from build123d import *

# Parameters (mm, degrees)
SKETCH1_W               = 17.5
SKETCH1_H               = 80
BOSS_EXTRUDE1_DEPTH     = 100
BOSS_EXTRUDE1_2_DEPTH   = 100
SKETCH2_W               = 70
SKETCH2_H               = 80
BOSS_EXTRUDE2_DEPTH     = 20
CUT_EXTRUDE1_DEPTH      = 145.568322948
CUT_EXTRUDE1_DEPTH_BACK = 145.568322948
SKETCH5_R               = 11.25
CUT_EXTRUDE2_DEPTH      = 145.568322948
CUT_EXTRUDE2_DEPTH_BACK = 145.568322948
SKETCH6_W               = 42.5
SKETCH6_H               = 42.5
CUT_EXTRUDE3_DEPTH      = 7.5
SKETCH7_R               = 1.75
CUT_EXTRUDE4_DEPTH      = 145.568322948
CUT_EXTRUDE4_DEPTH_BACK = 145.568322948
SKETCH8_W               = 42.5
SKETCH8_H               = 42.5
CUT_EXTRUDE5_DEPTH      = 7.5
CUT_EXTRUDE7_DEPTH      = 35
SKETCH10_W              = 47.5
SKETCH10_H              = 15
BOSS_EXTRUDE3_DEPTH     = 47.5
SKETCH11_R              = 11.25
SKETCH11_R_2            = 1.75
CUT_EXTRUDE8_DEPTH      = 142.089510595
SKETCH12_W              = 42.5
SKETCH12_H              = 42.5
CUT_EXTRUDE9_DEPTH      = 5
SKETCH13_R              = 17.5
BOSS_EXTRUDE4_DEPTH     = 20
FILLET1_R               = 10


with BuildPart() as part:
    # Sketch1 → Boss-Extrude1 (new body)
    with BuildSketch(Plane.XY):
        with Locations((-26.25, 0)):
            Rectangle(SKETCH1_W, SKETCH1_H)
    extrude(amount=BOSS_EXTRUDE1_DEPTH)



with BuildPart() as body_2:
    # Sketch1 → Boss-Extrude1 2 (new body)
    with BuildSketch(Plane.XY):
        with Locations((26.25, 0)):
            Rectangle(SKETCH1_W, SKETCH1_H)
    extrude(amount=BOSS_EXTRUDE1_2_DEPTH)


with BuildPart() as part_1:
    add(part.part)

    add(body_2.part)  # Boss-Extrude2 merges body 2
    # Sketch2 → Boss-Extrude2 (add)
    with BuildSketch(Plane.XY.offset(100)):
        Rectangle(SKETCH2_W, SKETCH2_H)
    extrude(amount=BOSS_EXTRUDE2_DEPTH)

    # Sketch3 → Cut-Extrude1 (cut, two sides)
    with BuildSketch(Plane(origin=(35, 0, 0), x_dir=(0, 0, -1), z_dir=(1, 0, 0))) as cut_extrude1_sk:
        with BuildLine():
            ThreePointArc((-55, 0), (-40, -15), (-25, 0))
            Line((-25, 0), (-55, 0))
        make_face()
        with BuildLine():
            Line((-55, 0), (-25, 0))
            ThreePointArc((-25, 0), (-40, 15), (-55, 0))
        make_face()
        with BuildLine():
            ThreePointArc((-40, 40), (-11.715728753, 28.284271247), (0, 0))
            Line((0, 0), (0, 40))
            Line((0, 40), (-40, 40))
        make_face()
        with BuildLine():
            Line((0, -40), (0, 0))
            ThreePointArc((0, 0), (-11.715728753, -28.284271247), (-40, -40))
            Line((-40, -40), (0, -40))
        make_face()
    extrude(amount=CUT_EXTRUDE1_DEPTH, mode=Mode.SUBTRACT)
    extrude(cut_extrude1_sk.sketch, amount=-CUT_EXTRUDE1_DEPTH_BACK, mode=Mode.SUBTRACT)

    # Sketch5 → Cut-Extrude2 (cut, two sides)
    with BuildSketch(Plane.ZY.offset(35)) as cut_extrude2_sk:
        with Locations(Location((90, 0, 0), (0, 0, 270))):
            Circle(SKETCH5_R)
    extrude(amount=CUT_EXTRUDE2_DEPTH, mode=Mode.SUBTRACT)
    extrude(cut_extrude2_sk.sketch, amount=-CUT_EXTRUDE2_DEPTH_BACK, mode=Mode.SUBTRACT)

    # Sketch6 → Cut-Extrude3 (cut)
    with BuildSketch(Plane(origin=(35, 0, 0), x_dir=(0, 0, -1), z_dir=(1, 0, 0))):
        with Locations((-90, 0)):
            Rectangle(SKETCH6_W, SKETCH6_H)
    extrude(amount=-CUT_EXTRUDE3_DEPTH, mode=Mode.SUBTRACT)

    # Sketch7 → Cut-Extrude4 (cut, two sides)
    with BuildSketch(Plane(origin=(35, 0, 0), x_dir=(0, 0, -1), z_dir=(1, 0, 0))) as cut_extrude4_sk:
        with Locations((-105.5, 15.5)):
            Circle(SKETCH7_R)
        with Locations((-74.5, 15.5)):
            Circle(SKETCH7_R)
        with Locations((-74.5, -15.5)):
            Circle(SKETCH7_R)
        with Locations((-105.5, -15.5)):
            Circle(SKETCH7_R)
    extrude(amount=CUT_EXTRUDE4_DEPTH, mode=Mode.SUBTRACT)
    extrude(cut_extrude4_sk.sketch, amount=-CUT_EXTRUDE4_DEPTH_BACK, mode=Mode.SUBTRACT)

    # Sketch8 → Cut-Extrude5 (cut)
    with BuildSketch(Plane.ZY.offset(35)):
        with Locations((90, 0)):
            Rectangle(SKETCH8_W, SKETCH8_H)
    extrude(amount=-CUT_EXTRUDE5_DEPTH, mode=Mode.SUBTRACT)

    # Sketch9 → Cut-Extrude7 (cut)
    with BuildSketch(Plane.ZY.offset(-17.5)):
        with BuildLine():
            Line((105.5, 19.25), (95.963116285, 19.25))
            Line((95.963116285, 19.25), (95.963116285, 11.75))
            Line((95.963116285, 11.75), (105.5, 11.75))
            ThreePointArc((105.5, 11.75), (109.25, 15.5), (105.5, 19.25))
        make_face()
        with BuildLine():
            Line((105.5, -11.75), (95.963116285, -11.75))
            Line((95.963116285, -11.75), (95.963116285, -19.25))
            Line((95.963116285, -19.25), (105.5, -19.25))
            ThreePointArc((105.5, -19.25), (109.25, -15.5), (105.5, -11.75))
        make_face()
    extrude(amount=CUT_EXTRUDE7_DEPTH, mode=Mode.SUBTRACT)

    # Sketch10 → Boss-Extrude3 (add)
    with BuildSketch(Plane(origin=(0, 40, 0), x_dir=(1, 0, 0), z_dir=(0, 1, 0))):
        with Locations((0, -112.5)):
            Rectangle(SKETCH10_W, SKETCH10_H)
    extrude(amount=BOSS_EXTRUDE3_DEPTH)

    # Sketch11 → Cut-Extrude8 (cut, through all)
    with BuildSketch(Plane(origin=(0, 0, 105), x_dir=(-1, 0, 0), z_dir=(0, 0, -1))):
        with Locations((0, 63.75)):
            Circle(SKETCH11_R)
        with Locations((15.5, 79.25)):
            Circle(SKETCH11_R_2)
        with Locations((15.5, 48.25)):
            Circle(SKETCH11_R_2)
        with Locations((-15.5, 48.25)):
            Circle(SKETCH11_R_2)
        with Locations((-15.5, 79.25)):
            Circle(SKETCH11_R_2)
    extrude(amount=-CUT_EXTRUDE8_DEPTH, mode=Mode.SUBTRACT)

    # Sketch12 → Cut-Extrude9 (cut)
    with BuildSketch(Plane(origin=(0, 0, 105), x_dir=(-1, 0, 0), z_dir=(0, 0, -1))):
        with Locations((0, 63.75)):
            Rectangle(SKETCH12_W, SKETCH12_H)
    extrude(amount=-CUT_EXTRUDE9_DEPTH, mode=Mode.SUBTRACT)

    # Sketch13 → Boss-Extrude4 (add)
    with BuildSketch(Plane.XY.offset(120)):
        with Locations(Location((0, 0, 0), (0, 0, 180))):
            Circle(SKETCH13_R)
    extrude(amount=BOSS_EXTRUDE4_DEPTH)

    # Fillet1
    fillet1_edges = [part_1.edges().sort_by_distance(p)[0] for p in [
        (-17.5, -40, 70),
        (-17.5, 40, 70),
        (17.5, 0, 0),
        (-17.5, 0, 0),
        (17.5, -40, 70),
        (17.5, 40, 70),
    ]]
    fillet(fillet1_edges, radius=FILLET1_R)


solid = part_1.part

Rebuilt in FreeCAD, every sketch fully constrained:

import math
import FreeCAD as App
import Part
import Sketcher

V = App.Vector


def edges_at(feature, points):
    """Names of the edges that pass closest to the given points."""
    edges = feature.Shape.Edges
    near = lambda p: min(range(len(edges)), key=lambda i: edges[i].distToShape(Part.Vertex(*p))[0])
    return sorted({f"Edge{near(p) + 1}" for p in points})

doc = App.newDocument("Part")
body = doc.addObject("PartDesign::Body", "Body")

# Sketch on XY plane
sketch1 = body.newObject("Sketcher::SketchObject", "Sketch")
sketch1.AttachmentSupport = (doc.getObject("XY_Plane"), [""])
sketch1.MapMode = "FlatFace"
sketch1.addGeometry([
    Part.LineSegment(V(-35, 40, 0), V(-35, -40, 0)),
    Part.LineSegment(V(-35, -40, 0), V(-17.5, -40, 0)),
    Part.LineSegment(V(-17.5, -40, 0), V(-17.5, 40, 0)),
    Part.LineSegment(V(-17.5, 40, 0), V(-35, 40, 0)),
], False)
sketch1.addConstraint([
    Sketcher.Constraint("Coincident", 0, 2, 1, 1),
    Sketcher.Constraint("Coincident", 1, 2, 2, 1),
    Sketcher.Constraint("Coincident", 2, 2, 3, 1),
    Sketcher.Constraint("Coincident", 3, 2, 0, 1),
    Sketcher.Constraint("Vertical", 0),
    Sketcher.Constraint("Horizontal", 1),
    Sketcher.Constraint("Vertical", 2),
    Sketcher.Constraint("Horizontal", 3),
    Sketcher.Constraint("DistanceY", 0, 2, 0, 1, 80.0),
    Sketcher.Constraint("DistanceX", 1, 1, 1, 2, 17.5),
    Sketcher.Constraint("DistanceX", 0, 2, -1, 1, 35.0),
    Sketcher.Constraint("DistanceY", 0, 2, -1, 1, 40.0),
])
pad1 = body.newObject("PartDesign::Pad", "Pad")
pad1.Profile = sketch1
pad1.Length = 100
body2 = doc.addObject("PartDesign::Body", "Body001")

# Sketch on XY plane
sketch2 = body2.newObject("Sketcher::SketchObject", "Sketch001")
sketch2.AttachmentSupport = (doc.getObject("XY_Plane001"), [""])
sketch2.MapMode = "FlatFace"
sketch2.addGeometry([
    Part.LineSegment(V(17.5, 40, 0), V(17.5, -40, 0)),
    Part.LineSegment(V(17.5, -40, 0), V(35, -40, 0)),
    Part.LineSegment(V(35, -40, 0), V(35, 40, 0)),
    Part.LineSegment(V(35, 40, 0), V(17.5, 40, 0)),
], False)
sketch2.addConstraint([
    Sketcher.Constraint("Coincident", 0, 2, 1, 1),
    Sketcher.Constraint("Coincident", 1, 2, 2, 1),
    Sketcher.Constraint("Coincident", 2, 2, 3, 1),
    Sketcher.Constraint("Coincident", 3, 2, 0, 1),
    Sketcher.Constraint("Vertical", 0),
    Sketcher.Constraint("Horizontal", 1),
    Sketcher.Constraint("Vertical", 2),
    Sketcher.Constraint("Horizontal", 3),
    Sketcher.Constraint("DistanceY", 0, 2, 0, 1, 80.0),
    Sketcher.Constraint("DistanceX", 1, 1, 1, 2, 17.5),
    Sketcher.Constraint("DistanceY", 0, 2, -1, 1, 40.0),
    Sketcher.Constraint("DistanceX", -1, 1, 1, 2, 35.0),
])
pad2 = body2.newObject("PartDesign::Pad", "Pad001")
pad2.Profile = sketch2
pad2.Length = 100
body.AllowCompound = True
doc.recompute()

boolean = body.newObject("PartDesign::Boolean", "Boolean")
boolean.Type = "Fuse"
boolean.addObjects([body2])

# Sketch on XY plane
sketch3 = body.newObject("Sketcher::SketchObject", "Sketch002")
sketch3.AttachmentSupport = (doc.getObject("XY_Plane"), [""])
sketch3.MapMode = "FlatFace"
sketch3.AttachmentOffset = App.Placement(V(0, 0, 100), App.Rotation())
sketch3.addGeometry([
    Part.LineSegment(V(-35, 40, 0), V(-35, -40, 0)),
    Part.LineSegment(V(-35, -40, 0), V(35, -40, 0)),
    Part.LineSegment(V(35, -40, 0), V(35, 40, 0)),
    Part.LineSegment(V(35, 40, 0), V(-35, 40, 0)),
], False)
sketch3.addConstraint([
    Sketcher.Constraint("Coincident", 0, 2, 1, 1),
    Sketcher.Constraint("Coincident", 1, 2, 2, 1),
    Sketcher.Constraint("Coincident", 2, 2, 3, 1),
    Sketcher.Constraint("Coincident", 3, 2, 0, 1),
    Sketcher.Constraint("Vertical", 0),
    Sketcher.Constraint("Horizontal", 1),
    Sketcher.Constraint("Vertical", 2),
    Sketcher.Constraint("Horizontal", 3),
    Sketcher.Constraint("Symmetric", 0, 2, 2, 2, -1, 1),
    Sketcher.Constraint("DistanceX", 1, 1, 1, 2, 70.0),
    Sketcher.Constraint("DistanceY", 0, 2, 0, 1, 80.0),
])
pad3 = body.newObject("PartDesign::Pad", "Pad002")
pad3.Profile = sketch3
pad3.Length = 20

# Sketch on YZ plane
sketch4 = body.newObject("Sketcher::SketchObject", "Sketch003")
sketch4.AttachmentSupport = (doc.getObject("YZ_Plane"), [""])
sketch4.MapMode = "FlatFace"
sketch4.AttachmentOffset = App.Placement(V(0, 0, 35), App.Rotation())
sketch4.addGeometry([
    Part.Circle(V(0, 40, 0), V(0, 0, 1), 15),  # 0
    Part.ArcOfCircle(Part.Circle(V(0, 40, 0), V(0, 0, 1), 40), math.radians(-90), math.radians(0)),  # 1
    Part.LineSegment(V(0, 0, 0), V(40, 0, 0)),  # 2
    Part.LineSegment(V(40, 0, 0), V(40, 40, 0)),  # 3
    Part.LineSegment(V(-40, 0, 0), V(0, 0, 0)),  # 4
    Part.ArcOfCircle(Part.Circle(V(0, 40, 0), V(0, 0, 1), 40), math.radians(-180), math.radians(-90)),  # 5
    Part.LineSegment(V(-40, 40, 0), V(-40, 0, 0)),  # 6
], False)
sketch4.addConstraint([
    Sketcher.Constraint("Tangent", 1, 1, 2, 1),
    Sketcher.Constraint("Coincident", 2, 2, 3, 1),
    Sketcher.Constraint("Tangent", 3, 2, 1, 2),
    Sketcher.Constraint("Tangent", 4, 2, 5, 2),
    Sketcher.Constraint("Tangent", 5, 1, 6, 1),
    Sketcher.Constraint("Coincident", 6, 2, 4, 1),
    Sketcher.Constraint("Horizontal", 2),
    Sketcher.Constraint("Vertical", 3),
    Sketcher.Constraint("Horizontal", 4),
    Sketcher.Constraint("Vertical", 6),
    Sketcher.Constraint("Coincident", 1, 1, -1, 1),
    Sketcher.Constraint("Coincident", 4, 2, -1, 1),
    Sketcher.Constraint("Coincident", 1, 3, 0, 3),
    Sketcher.Constraint("Equal", 1, 5),
    Sketcher.Constraint("Diameter", 0, 30.0),
    Sketcher.Constraint("Radius", 1, 40.0),
])
pocket1 = body.newObject("PartDesign::Pocket", "Pocket")
pocket1.Profile = sketch4
pocket1.Type = "ThroughAll"
pocket1.Midplane = True

# Sketch on YZ plane
sketch5 = body.newObject("Sketcher::SketchObject", "Sketch004")
sketch5.AttachmentSupport = (doc.getObject("YZ_Plane"), [""])
sketch5.MapMode = "FlatFace"
sketch5.AttachmentOffset = App.Placement(V(0, 0, -35), App.Rotation())
sketch5.addGeometry(Part.Circle(V(0, 90, 0), V(0, 0, 1), 11.25), False)
sketch5.addConstraint([
    Sketcher.Constraint("PointOnObject", 0, 3, -2),
    Sketcher.Constraint("Diameter", 0, 22.5),
    Sketcher.Constraint("DistanceY", -1, 1, 0, 3, 90.0),
])
pocket2 = body.newObject("PartDesign::Pocket", "Pocket001")
pocket2.Profile = sketch5
pocket2.Type = "ThroughAll"
pocket2.Midplane = True

# Sketch on YZ plane
sketch6 = body.newObject("Sketcher::SketchObject", "Sketch005")
sketch6.AttachmentSupport = (doc.getObject("YZ_Plane"), [""])
sketch6.MapMode = "FlatFace"
sketch6.AttachmentOffset = App.Placement(V(0, 0, 35), App.Rotation())
sketch6.addGeometry([
    Part.LineSegment(V(21.25, 111.25, 0), V(-21.25, 111.25, 0)),
    Part.LineSegment(V(-21.25, 111.25, 0), V(-21.25, 68.75, 0)),
    Part.LineSegment(V(-21.25, 68.75, 0), V(21.25, 68.75, 0)),
    Part.LineSegment(V(21.25, 68.75, 0), V(21.25, 111.25, 0)),
], False)
sketch6.addConstraint([
    Sketcher.Constraint("Coincident", 0, 2, 1, 1),
    Sketcher.Constraint("Coincident", 1, 2, 2, 1),
    Sketcher.Constraint("Coincident", 2, 2, 3, 1),
    Sketcher.Constraint("Coincident", 3, 2, 0, 1),
    Sketcher.Constraint("Horizontal", 0),
    Sketcher.Constraint("Vertical", 1),
    Sketcher.Constraint("Horizontal", 2),
    Sketcher.Constraint("Vertical", 3),
    Sketcher.Constraint("Equal", 2, 1),
    Sketcher.Constraint("DistanceX", 0, 2, 0, 1, 42.5),
    Sketcher.Constraint("DistanceX", 0, 2, -1, 1, 21.25),
    Sketcher.Constraint("DistanceY", -1, 1, 0, 2, 111.25),
])
pocket3 = body.newObject("PartDesign::Pocket", "Pocket002")
pocket3.Profile = sketch6
pocket3.Length = 7.5

# Sketch on YZ plane
sketch7 = body.newObject("Sketcher::SketchObject", "Sketch006")
sketch7.AttachmentSupport = (doc.getObject("YZ_Plane"), [""])
sketch7.MapMode = "FlatFace"
sketch7.AttachmentOffset = App.Placement(V(0, 0, 35), App.Rotation())
sketch7.addGeometry([
    Part.Circle(V(15.5, 105.5, 0), V(0, 0, 1), 1.75),
    Part.Circle(V(15.5, 74.5, 0), V(0, 0, 1), 1.75),
    Part.Circle(V(-15.5, 74.5, 0), V(0, 0, 1), 1.75),
    Part.Circle(V(-15.5, 105.5, 0), V(0, 0, 1), 1.75),
], False)
sketch7.addConstraint([
    Sketcher.Constraint("Equal", 0, 1),
    Sketcher.Constraint("Equal", 1, 2),
    Sketcher.Constraint("Equal", 2, 3),
    Sketcher.Constraint("Symmetric", 1, 3, 2, 3, -2),
    Sketcher.Constraint("Symmetric", 0, 3, 3, 3, -2),
    Sketcher.Constraint("Vertical", 0, 3, 1, 3),
    Sketcher.Constraint("Diameter", 0, 3.5),
    Sketcher.Constraint("DistanceY", 1, 3, 0, 3, 31.0),
    Sketcher.Constraint("DistanceX", 2, 3, 1, 3, 31.0),
    Sketcher.Constraint("DistanceY", -1, 1, 0, 3, 105.5),
])
pocket4 = body.newObject("PartDesign::Pocket", "Pocket003")
pocket4.Profile = sketch7
pocket4.Type = "ThroughAll"
pocket4.Midplane = True

# Sketch on YZ plane
sketch8 = body.newObject("Sketcher::SketchObject", "Sketch007")
sketch8.AttachmentSupport = (doc.getObject("YZ_Plane"), [""])
sketch8.MapMode = "FlatFace"
sketch8.AttachmentOffset = App.Placement(V(0, 0, -35), App.Rotation())
sketch8.addGeometry([
    Part.LineSegment(V(21.25, 68.75, 0), V(-21.25, 68.75, 0)),
    Part.LineSegment(V(-21.25, 68.75, 0), V(-21.25, 111.25, 0)),
    Part.LineSegment(V(-21.25, 111.25, 0), V(21.25, 111.25, 0)),
    Part.LineSegment(V(21.25, 111.25, 0), V(21.25, 68.75, 0)),
], False)
sketch8.addConstraint([
    Sketcher.Constraint("Coincident", 0, 2, 1, 1),
    Sketcher.Constraint("Coincident", 1, 2, 2, 1),
    Sketcher.Constraint("Coincident", 2, 2, 3, 1),
    Sketcher.Constraint("Coincident", 3, 2, 0, 1),
    Sketcher.Constraint("Horizontal", 0),
    Sketcher.Constraint("Vertical", 1),
    Sketcher.Constraint("Horizontal", 2),
    Sketcher.Constraint("Vertical", 3),
    Sketcher.Constraint("Equal", 2, 1),
    Sketcher.Constraint("DistanceX", 0, 2, 0, 1, 42.5),
    Sketcher.Constraint("DistanceX", 0, 2, -1, 1, 21.25),
    Sketcher.Constraint("DistanceY", -1, 1, 0, 2, 68.75),
])
pocket5 = body.newObject("PartDesign::Pocket", "Pocket004")
pocket5.Profile = sketch8
pocket5.Length = 7.5
pocket5.Reversed = True

# Sketch on YZ plane
sketch9 = body.newObject("Sketcher::SketchObject", "Sketch008")
sketch9.AttachmentSupport = (doc.getObject("YZ_Plane"), [""])
sketch9.MapMode = "FlatFace"
sketch9.AttachmentOffset = App.Placement(V(0, 0, 17.5), App.Rotation())
sketch9.addGeometry([
    Part.LineSegment(V(19.25, 105.5, 0), V(19.25, 95.963116, 0)),  # 0
    Part.LineSegment(V(19.25, 95.963116, 0), V(11.75, 95.963116, 0)),  # 1
    Part.LineSegment(V(11.75, 95.963116, 0), V(11.75, 105.5, 0)),  # 2
    Part.ArcOfCircle(Part.Circle(V(15.5, 105.5, 0), V(0, 0, 1), 3.75), math.radians(0), math.radians(180)),  # 3
    Part.LineSegment(V(-11.75, 105.5, 0), V(-11.75, 95.963116, 0)),  # 4
    Part.LineSegment(V(-11.75, 95.963116, 0), V(-19.25, 95.963116, 0)),  # 5
    Part.LineSegment(V(-19.25, 95.963116, 0), V(-19.25, 105.5, 0)),  # 6
    Part.ArcOfCircle(Part.Circle(V(-15.5, 105.5, 0), V(0, 0, 1), 3.75), math.radians(0), math.radians(180)),  # 7
], False)
sketch9.addConstraint([
    Sketcher.Constraint("Coincident", 0, 2, 1, 1),
    Sketcher.Constraint("Coincident", 1, 2, 2, 1),
    Sketcher.Constraint("Tangent", 2, 2, 3, 2),
    Sketcher.Constraint("Tangent", 3, 1, 0, 1),
    Sketcher.Constraint("Coincident", 4, 2, 5, 1),
    Sketcher.Constraint("Coincident", 5, 2, 6, 1),
    Sketcher.Constraint("Tangent", 6, 2, 7, 2),
    Sketcher.Constraint("Tangent", 7, 1, 4, 1),
    Sketcher.Constraint("Vertical", 0),
    Sketcher.Constraint("Horizontal", 1),
    Sketcher.Constraint("Vertical", 2),
    Sketcher.Constraint("Vertical", 4),
    Sketcher.Constraint("Horizontal", 5),
    Sketcher.Constraint("Vertical", 6),
    Sketcher.Constraint("Equal", 3, 7),
    Sketcher.Constraint("Symmetric", 3, 3, 7, 3, -2),
    Sketcher.Constraint("Horizontal", 1, 2, 4, 2),
    Sketcher.Constraint("Radius", 3, 3.75),
    Sketcher.Constraint("DistanceX", 7, 3, 3, 3, 31.0),
    Sketcher.Constraint("DistanceY", -1, 1, 3, 3, 105.5),
    Sketcher.Constraint("DistanceY", 0, 2, 0, 1, 9.536884),
])
pocket6 = body.newObject("PartDesign::Pocket", "Pocket005")
pocket6.Profile = sketch9
pocket6.Length = 35

# Sketch on XZ plane
sketch10 = body.newObject("Sketcher::SketchObject", "Sketch009")
sketch10.AttachmentSupport = (doc.getObject("XZ_Plane"), [""])
sketch10.MapMode = "FlatFace"
sketch10.AttachmentOffset = App.Placement(V(0, 0, -40), App.Rotation())
sketch10.addGeometry([
    Part.LineSegment(V(-23.75, 105, 0), V(-23.75, 120, 0)),
    Part.LineSegment(V(-23.75, 120, 0), V(23.75, 120, 0)),
    Part.LineSegment(V(23.75, 120, 0), V(23.75, 105, 0)),
    Part.LineSegment(V(23.75, 105, 0), V(-23.75, 105, 0)),
], False)
sketch10.addConstraint([
    Sketcher.Constraint("Coincident", 0, 2, 1, 1),
    Sketcher.Constraint("Coincident", 1, 2, 2, 1),
    Sketcher.Constraint("Coincident", 2, 2, 3, 1),
    Sketcher.Constraint("Coincident", 3, 2, 0, 1),
    Sketcher.Constraint("Vertical", 0),
    Sketcher.Constraint("Horizontal", 1),
    Sketcher.Constraint("Vertical", 2),
    Sketcher.Constraint("Horizontal", 3),
    Sketcher.Constraint("DistanceY", 0, 1, 0, 2, 15.0),
    Sketcher.Constraint("DistanceX", 1, 1, 1, 2, 47.5),
    Sketcher.Constraint("DistanceY", -1, 1, 0, 2, 120.0),
    Sketcher.Constraint("DistanceX", 0, 2, -1, 1, 23.75),
])
pad4 = body.newObject("PartDesign::Pad", "Pad003")
pad4.Profile = sketch10
pad4.Length = 47.5
pad4.Reversed = True

# Sketch on XY plane
sketch11 = body.newObject("Sketcher::SketchObject", "Sketch010")
sketch11.AttachmentSupport = (doc.getObject("XY_Plane"), [""])
sketch11.MapMode = "FlatFace"
sketch11.AttachmentOffset = App.Placement(V(0, 0, 105), App.Rotation())
sketch11.addGeometry([
    Part.Circle(V(0, 63.75, 0), V(0, 0, 1), 11.25),  # 0
    Part.Circle(V(-15.5, 79.25, 0), V(0, 0, 1), 1.75),  # 1
    Part.Circle(V(-15.5, 48.25, 0), V(0, 0, 1), 1.75),  # 2
    Part.Circle(V(15.5, 48.25, 0), V(0, 0, 1), 1.75),  # 3
    Part.Circle(V(15.5, 79.25, 0), V(0, 0, 1), 1.75),  # 4
], False)
sketch11.addConstraint([
    Sketcher.Constraint("Equal", 1, 2),
    Sketcher.Constraint("Equal", 2, 3),
    Sketcher.Constraint("Equal", 3, 4),
    Sketcher.Constraint("Symmetric", 2, 3, 3, 3, -2),
    Sketcher.Constraint("Symmetric", 1, 3, 4, 3, -2),
    Sketcher.Constraint("PointOnObject", 0, 3, -2),
    Sketcher.Constraint("Vertical", 1, 3, 2, 3),
    Sketcher.Constraint("Diameter", 0, 22.5),
    Sketcher.Constraint("Diameter", 1, 3.5),
    Sketcher.Constraint("DistanceY", 2, 3, 1, 3, 31.0),
    Sketcher.Constraint("DistanceX", 2, 3, 3, 3, 31.0),
    Sketcher.Constraint("DistanceY", 0, 3, 1, 3, 15.5),
    Sketcher.Constraint("DistanceY", -1, 1, 0, 3, 63.75),
])
pocket7 = body.newObject("PartDesign::Pocket", "Pocket006")
pocket7.Profile = sketch11
pocket7.Type = "ThroughAll"
pocket7.Reversed = True

# Sketch on XY plane
sketch12 = body.newObject("Sketcher::SketchObject", "Sketch011")
sketch12.AttachmentSupport = (doc.getObject("XY_Plane"), [""])
sketch12.MapMode = "FlatFace"
sketch12.AttachmentOffset = App.Placement(V(0, 0, 105), App.Rotation())
sketch12.addGeometry([
    Part.LineSegment(V(21.25, 85, 0), V(21.25, 42.5, 0)),
    Part.LineSegment(V(21.25, 42.5, 0), V(-21.25, 42.5, 0)),
    Part.LineSegment(V(-21.25, 42.5, 0), V(-21.25, 85, 0)),
    Part.LineSegment(V(-21.25, 85, 0), V(21.25, 85, 0)),
], False)
sketch12.addConstraint([
    Sketcher.Constraint("Coincident", 0, 2, 1, 1),
    Sketcher.Constraint("Coincident", 1, 2, 2, 1),
    Sketcher.Constraint("Coincident", 2, 2, 3, 1),
    Sketcher.Constraint("Coincident", 3, 2, 0, 1),
    Sketcher.Constraint("Vertical", 0),
    Sketcher.Constraint("Horizontal", 1),
    Sketcher.Constraint("Vertical", 2),
    Sketcher.Constraint("Horizontal", 3),
    Sketcher.Constraint("Equal", 3, 0),
    Sketcher.Constraint("DistanceX", 1, 2, 1, 1, 42.5),
    Sketcher.Constraint("DistanceY", -1, 1, 2, 2, 85.0),
    Sketcher.Constraint("DistanceX", -1, 1, 0, 2, 21.25),
])
pocket8 = body.newObject("PartDesign::Pocket", "Pocket007")
pocket8.Profile = sketch12
pocket8.Length = 5
pocket8.Reversed = True

# Sketch on XY plane
sketch13 = body.newObject("Sketcher::SketchObject", "Sketch012")
sketch13.AttachmentSupport = (doc.getObject("XY_Plane"), [""])
sketch13.MapMode = "FlatFace"
sketch13.AttachmentOffset = App.Placement(V(0, 0, 120), App.Rotation())
sketch13.addGeometry(Part.Circle(V(0, 0, 0), V(0, 0, 1), 17.5), False)
sketch13.addConstraint([
    Sketcher.Constraint("Coincident", 0, 3, -1, 1),
    Sketcher.Constraint("Diameter", 0, 35.0),
])
pad5 = body.newObject("PartDesign::Pad", "Pad004")
pad5.Profile = sketch13
pad5.Length = 20
doc.recompute()

fillet = body.newObject("PartDesign::Fillet", "Fillet")
fillet.Base = (pad5, edges_at(pad5, [
    (-17.5, -40, 70),
    (-17.5, 40, 70),
    (17.5, -28.284, 11.716),
    (-17.5, -28.284, 11.716),
    (17.5, -40, 70),
    (17.5, 40, 70),
]))
fillet.Radius = 10

doc.recompute()
